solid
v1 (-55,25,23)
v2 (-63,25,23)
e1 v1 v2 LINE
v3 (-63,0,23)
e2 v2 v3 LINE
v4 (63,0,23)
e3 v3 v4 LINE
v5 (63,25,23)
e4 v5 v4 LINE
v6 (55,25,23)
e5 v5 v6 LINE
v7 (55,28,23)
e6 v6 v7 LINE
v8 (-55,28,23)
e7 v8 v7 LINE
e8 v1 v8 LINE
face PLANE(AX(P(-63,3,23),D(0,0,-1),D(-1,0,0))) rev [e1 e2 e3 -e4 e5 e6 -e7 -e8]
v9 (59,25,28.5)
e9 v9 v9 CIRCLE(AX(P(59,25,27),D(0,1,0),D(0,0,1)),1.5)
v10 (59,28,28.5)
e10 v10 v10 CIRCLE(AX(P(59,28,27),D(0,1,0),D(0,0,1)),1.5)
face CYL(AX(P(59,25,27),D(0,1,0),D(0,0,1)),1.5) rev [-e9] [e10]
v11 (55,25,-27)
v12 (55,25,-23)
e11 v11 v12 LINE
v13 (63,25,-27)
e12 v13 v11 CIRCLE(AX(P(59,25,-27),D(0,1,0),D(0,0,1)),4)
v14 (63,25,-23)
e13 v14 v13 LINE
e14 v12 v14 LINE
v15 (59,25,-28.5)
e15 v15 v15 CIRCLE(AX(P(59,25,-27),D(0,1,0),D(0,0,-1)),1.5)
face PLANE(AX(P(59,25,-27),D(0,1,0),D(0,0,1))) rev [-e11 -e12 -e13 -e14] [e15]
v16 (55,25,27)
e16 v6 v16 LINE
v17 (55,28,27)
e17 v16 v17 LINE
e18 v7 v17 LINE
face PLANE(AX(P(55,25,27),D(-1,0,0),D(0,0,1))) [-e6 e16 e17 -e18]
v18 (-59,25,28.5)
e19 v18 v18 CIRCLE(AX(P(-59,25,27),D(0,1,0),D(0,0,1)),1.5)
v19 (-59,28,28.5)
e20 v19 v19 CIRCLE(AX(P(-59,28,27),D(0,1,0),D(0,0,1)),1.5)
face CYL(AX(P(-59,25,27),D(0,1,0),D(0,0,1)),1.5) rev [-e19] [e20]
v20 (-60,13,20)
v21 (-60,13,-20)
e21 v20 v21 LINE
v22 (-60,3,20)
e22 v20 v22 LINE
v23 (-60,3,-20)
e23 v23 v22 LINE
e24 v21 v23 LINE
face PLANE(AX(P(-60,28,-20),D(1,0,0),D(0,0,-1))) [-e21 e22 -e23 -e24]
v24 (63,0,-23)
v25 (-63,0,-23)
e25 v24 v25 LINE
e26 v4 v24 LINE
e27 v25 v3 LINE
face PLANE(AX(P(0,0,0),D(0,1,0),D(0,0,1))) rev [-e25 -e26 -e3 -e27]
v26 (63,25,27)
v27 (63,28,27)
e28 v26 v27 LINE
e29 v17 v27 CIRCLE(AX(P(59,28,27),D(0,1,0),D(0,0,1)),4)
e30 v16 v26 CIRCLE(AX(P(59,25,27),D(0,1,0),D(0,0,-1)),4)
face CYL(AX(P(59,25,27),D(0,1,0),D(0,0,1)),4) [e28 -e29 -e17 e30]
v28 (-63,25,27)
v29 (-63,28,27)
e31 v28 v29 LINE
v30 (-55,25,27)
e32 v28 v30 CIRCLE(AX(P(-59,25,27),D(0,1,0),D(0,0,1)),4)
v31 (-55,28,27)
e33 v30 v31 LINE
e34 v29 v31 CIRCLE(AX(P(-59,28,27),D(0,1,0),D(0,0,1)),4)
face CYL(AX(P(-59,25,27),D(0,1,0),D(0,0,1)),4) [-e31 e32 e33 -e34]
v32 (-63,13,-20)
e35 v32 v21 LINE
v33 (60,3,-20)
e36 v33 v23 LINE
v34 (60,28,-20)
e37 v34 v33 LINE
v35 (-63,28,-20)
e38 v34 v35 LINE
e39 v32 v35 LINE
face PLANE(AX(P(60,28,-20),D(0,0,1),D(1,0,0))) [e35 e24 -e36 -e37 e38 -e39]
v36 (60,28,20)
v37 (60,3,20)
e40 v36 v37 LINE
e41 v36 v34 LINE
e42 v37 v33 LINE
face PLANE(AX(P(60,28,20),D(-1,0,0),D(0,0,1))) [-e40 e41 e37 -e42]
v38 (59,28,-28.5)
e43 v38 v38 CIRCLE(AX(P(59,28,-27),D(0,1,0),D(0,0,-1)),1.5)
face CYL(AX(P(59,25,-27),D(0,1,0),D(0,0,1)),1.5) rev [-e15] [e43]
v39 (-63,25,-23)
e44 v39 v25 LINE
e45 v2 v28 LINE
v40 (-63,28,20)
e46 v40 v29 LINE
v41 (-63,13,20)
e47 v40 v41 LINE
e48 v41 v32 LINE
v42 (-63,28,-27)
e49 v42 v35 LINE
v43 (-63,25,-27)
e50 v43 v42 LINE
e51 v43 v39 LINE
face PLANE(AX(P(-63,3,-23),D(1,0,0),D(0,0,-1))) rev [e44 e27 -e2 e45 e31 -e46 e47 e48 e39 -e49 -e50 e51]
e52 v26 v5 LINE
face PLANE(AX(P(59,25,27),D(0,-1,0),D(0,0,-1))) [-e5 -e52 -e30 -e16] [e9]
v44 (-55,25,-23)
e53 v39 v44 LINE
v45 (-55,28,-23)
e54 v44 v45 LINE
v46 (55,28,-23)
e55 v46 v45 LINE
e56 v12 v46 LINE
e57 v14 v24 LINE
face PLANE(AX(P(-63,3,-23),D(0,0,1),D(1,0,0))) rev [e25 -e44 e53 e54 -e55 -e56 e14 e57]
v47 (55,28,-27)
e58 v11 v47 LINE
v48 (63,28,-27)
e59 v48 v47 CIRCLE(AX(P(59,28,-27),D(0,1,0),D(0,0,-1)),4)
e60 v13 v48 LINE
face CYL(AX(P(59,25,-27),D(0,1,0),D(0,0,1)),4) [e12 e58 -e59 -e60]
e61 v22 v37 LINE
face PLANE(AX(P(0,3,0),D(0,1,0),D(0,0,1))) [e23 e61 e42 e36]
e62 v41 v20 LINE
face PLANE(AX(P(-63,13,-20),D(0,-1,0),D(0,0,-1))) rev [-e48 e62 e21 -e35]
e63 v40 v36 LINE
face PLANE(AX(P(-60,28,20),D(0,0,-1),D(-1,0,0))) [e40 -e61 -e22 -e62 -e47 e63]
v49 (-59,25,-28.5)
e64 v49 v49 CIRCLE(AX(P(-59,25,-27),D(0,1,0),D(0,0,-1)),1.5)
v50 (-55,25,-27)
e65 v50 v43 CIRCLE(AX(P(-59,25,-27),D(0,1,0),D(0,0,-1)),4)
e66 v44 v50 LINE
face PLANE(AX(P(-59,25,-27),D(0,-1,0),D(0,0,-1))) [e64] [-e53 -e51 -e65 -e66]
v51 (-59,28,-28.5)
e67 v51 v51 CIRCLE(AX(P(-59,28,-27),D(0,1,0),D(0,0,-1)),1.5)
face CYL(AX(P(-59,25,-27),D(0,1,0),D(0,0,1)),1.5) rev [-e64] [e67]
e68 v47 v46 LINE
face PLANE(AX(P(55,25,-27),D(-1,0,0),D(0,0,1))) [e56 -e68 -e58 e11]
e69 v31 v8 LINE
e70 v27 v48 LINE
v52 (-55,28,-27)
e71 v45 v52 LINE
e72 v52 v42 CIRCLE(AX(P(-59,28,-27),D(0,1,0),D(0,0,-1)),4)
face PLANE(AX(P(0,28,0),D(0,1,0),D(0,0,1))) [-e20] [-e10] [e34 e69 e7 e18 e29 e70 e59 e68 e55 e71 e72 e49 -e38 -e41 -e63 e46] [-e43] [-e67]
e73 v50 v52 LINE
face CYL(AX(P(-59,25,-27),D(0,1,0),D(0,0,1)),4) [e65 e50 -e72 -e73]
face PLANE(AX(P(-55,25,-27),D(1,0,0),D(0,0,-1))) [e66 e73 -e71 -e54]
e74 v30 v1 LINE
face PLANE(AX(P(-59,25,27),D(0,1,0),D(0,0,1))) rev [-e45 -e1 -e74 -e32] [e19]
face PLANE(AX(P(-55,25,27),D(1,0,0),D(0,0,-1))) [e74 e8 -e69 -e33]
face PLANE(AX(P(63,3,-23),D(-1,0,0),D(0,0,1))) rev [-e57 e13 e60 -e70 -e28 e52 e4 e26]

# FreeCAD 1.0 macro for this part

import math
import FreeCAD as App
import Part
import Sketcher
Q = App.Units.Quantity

doc = App.newDocument("Part")
params = doc.addObject("Spreadsheet::Sheet", "Params")
for row, (alias, value) in enumerate([
    ("sketch1_width", "126 mm"),
    ("sketch1_height", "46 mm"),
    ("pad1_length", "3 mm"),
    ("sketch2_width", "126 mm"),
    ("sketch2_width2", "120 mm"),
    ("sketch2_height", "46 mm"),
    ("sketch2_height2", "40 mm"),
    ("pad2_length", "25 mm"),
    ("sketch3_diameter", "3 mm"),
    ("sketch3_radius", "4 mm"),
    ("sketch3_height", "4 mm"),
    ("pad3_length", "3 mm"),
    ("sketch4_width", "15 mm"),
    ("sketch4_height", "40 mm"),
    ("pocket1_length", "3 mm"),
], start=1):
    params.set(f"A{row}", alias)
    params.set(f"B{row}", "=" + value)
    params.setAlias(f"B{row}", alias)

body = doc.addObject("PartDesign::Body", "Body")

# Sketch on XZ plane
sketch1 = body.newObject("Sketcher::SketchObject", "Sketch")
sketch1.AttachmentSupport = (doc.getObject("XZ_Plane"), [""])
sketch1.MapMode = "FlatFace"
sketch1.addGeometry(Part.LineSegment(App.Vector(-63, -23, 0), App.Vector(-63, 23, 0)), False)
sketch1.addGeometry(Part.LineSegment(App.Vector(-63, 23, 0), App.Vector(63, 23, 0)), False)
sketch1.addGeometry(Part.LineSegment(App.Vector(63, 23, 0), App.Vector(63, -23, 0)), False)
sketch1.addGeometry(Part.LineSegment(App.Vector(63, -23, 0), App.Vector(-63, -23, 0)), False)
sketch1.addConstraint(Sketcher.Constraint("Coincident", 0, 2, 1, 1))
sketch1.addConstraint(Sketcher.Constraint("Coincident", 1, 2, 2, 1))
sketch1.addConstraint(Sketcher.Constraint("Coincident", 2, 2, 3, 1))
sketch1.addConstraint(Sketcher.Constraint("Coincident", 3, 2, 0, 1))
sketch1.addConstraint(Sketcher.Constraint("Vertical", 0))
sketch1.addConstraint(Sketcher.Constraint("Horizontal", 1))
sketch1.addConstraint(Sketcher.Constraint("Vertical", 2))
sketch1.addConstraint(Sketcher.Constraint("Horizontal", 3))
sketch1.addConstraint(Sketcher.Constraint("Symmetric", 0, 2, 2, 2, -1, 1))
sketch1.addConstraint(Sketcher.Constraint("DistanceX", 1, 1, 1, 2, Q("126 mm")))
sketch1.addConstraint(Sketcher.Constraint("DistanceY", 0, 1, 0, 2, Q("46 mm")))
sketch1.setExpression("Constraints[9]", "Params.sketch1_width")
sketch1.setExpression("Constraints[10]", "Params.sketch1_height")
pad1 = body.newObject("PartDesign::Pad", "Pad")
pad1.Profile = sketch1
pad1.setExpression("Length", "Params.pad1_length")
pad1.Reversed = True

# Sketch on XZ plane
sketch2 = body.newObject("Sketcher::SketchObject", "Sketch001")
sketch2.AttachmentSupport = (doc.getObject("XZ_Plane"), [""])
sketch2.MapMode = "FlatFace"
sketch2.AttachmentOffset = App.Placement(App.Vector(0, 0, -3), App.Rotation())
sketch2.addGeometry(Part.LineSegment(App.Vector(-63, -23, 0), App.Vector(-63, 23, 0)), False)
sketch2.addGeometry(Part.LineSegment(App.Vector(-63, 23, 0), App.Vector(63, 23, 0)), False)
sketch2.addGeometry(Part.LineSegment(App.Vector(63, 23, 0), App.Vector(63, -23, 0)), False)
sketch2.addGeometry(Part.LineSegment(App.Vector(63, -23, 0), App.Vector(-63, -23, 0)), False)
sketch2.addGeometry(Part.LineSegment(App.Vector(60, 20, 0), App.Vector(-60, 20, 0)), False)
sketch2.addGeometry(Part.LineSegment(App.Vector(-60, 20, 0), App.Vector(-60, -20, 0)), False)
sketch2.addGeometry(Part.LineSegment(App.Vector(-60, -20, 0), App.Vector(60, -20, 0)), False)
sketch2.addGeometry(Part.LineSegment(App.Vector(60, -20, 0), App.Vector(60, 20, 0)), False)
sketch2.addConstraint(Sketcher.Constraint("Coincident", 0, 2, 1, 1))
sketch2.addConstraint(Sketcher.Constraint("Coincident", 1, 2, 2, 1))
sketch2.addConstraint(Sketcher.Constraint("Coincident", 2, 2, 3, 1))
sketch2.addConstraint(Sketcher.Constraint("Coincident", 3, 2, 0, 1))
sketch2.addConstraint(Sketcher.Constraint("Coincident", 4, 2, 5, 1))
sketch2.addConstraint(Sketcher.Constraint("Coincident", 5, 2, 6, 1))
sketch2.addConstraint(Sketcher.Constraint("Coincident", 6, 2, 7, 1))
sketch2.addConstraint(Sketcher.Constraint("Coincident", 7, 2, 4, 1))
sketch2.addConstraint(Sketcher.Constraint("Vertical", 0))
sketch2.addConstraint(Sketcher.Constraint("Horizontal", 1))
sketch2.addConstraint(Sketcher.Constraint("Vertical", 2))
sketch2.addConstraint(Sketcher.Constraint("Horizontal", 3))
sketch2.addConstraint(Sketcher.Constraint("Horizontal", 4))
sketch2.addConstraint(Sketcher.Constraint("Vertical", 5))
sketch2.addConstraint(Sketcher.Constraint("Horizontal", 6))
sketch2.addConstraint(Sketcher.Constraint("Vertical", 7))
sketch2.addConstraint(Sketcher.Constraint("Symmetric", 0, 2, 2, 2, -1, 1))
sketch2.addConstraint(Sketcher.Constraint("Symmetric", 4, 2, 6, 2, -1, 1))
sketch2.addConstraint(Sketcher.Constraint("DistanceX", 1, 1, 1, 2, Q("126 mm")))
sketch2.addConstraint(Sketcher.Constraint("DistanceX", 4, 2, 4, 1, Q("120 mm")))
sketch2.addConstraint(Sketcher.Constraint("DistanceY", 0, 1, 0, 2, Q("46 mm")))
sketch2.addConstraint(Sketcher.Constraint("DistanceY", 5, 2, 5, 1, Q("40 mm")))
sketch2.setExpression("Constraints[18]", "Params.sketch2_width")
sketch2.setExpression("Constraints[19]", "Params.sketch2_width2")
sketch2.setExpression("Constraints[20]", "Params.sketch2_height")
sketch2.setExpression("Constraints[21]", "Params.sketch2_height2")
pad2 = body.newObject("PartDesign::Pad", "Pad001")
pad2.Profile = sketch2
pad2.setExpression("Length", "Params.pad2_length")
pad2.Reversed = True

# Sketch on XZ plane
sketch3 = body.newObject("Sketcher::SketchObject", "Sketch002")
sketch3.AttachmentSupport = (doc.getObject("XZ_Plane"), [""])
sketch3.MapMode = "FlatFace"
sketch3.AttachmentOffset = App.Placement(App.Vector(0, 0, -28), App.Rotation())
sketch3.addGeometry(Part.LineSegment(App.Vector(63, 27, 0), App.Vector(63, 23, 0)), False)
sketch3.addGeometry(Part.LineSegment(App.Vector(63, 23, 0), App.Vector(55, 23, 0)), False)
sketch3.addGeometry(Part.LineSegment(App.Vector(55, 23, 0), App.Vector(55, 27, 0)), False)
sketch3.addGeometry(Part.ArcOfCircle(Part.Circle(App.Vector(59, 27, 0), App.Vector(0, 0, 1), 4), math.radians(90), math.radians(180)), False)
sketch3.addGeometry(Part.ArcOfCircle(Part.Circle(App.Vector(59, 27, 0), App.Vector(0, 0, 1), 4), math.radians(0), math.radians(90)), False)
sketch3.addGeometry(Part.Circle(App.Vector(59, 27, 0), App.Vector(0, 0, 1), 1.5), False)
sketch3.addGeometry(Part.LineSegment(App.Vector(-55, 23, 0), App.Vector(-63, 23, 0)), False)
sketch3.addGeometry(Part.LineSegment(App.Vector(-63, 23, 0), App.Vector(-63, 27, 0)), False)
sketch3.addGeometry(Part.ArcOfCircle(Part.Circle(App.Vector(-59, 27, 0), App.Vector(0, 0, 1), 4), math.radians(90), math.radians(180)), False)
sketch3.addGeometry(Part.ArcOfCircle(Part.Circle(App.Vector(-59, 27, 0), App.Vector(0, 0, 1), 4), math.radians(0), math.radians(90)), False)
sketch3.addGeometry(Part.LineSegment(App.Vector(-55, 27, 0), App.Vector(-55, 23, 0)), False)
sketch3.addGeometry(Part.Circle(App.Vector(-59, 27, 0), App.Vector(0, 0, 1), 1.5), False)
sketch3.addGeometry(Part.LineSegment(App.Vector(55, -27, 0), App.Vector(55, -23, 0)), False)
sketch3.addGeometry(Part.LineSegment(App.Vector(55, -23, 0), App.Vector(63, -23, 0)), False)
sketch3.addGeometry(Part.LineSegment(App.Vector(63, -23, 0), App.Vector(63, -27, 0)), False)
sketch3.addGeometry(Part.ArcOfCircle(Part.Circle(App.Vector(59, -27, 0), App.Vector(0, 0, 1), 4), math.radians(-90), math.radians(0)), False)
sketch3.addGeometry(Part.ArcOfCircle(Part.Circle(App.Vector(59, -27, 0), App.Vector(0, 0, 1), 4), math.radians(180), math.radians(270)), False)
sketch3.addGeometry(Part.Circle(App.Vector(59, -27, 0), App.Vector(0, 0, 1), 1.5), False)
sketch3.addGeometry(Part.LineSegment(App.Vector(-55, -23, 0), App.Vector(-55, -27, 0)), False)
sketch3.addGeometry(Part.ArcOfCircle(Part.Circle(App.Vector(-59, -27, 0), App.Vector(0, 0, 1), 4), math.radians(-90), math.radians(0)), False)
sketch3.addGeometry(Part.ArcOfCircle(Part.Circle(App.Vector(-59, -27, 0), App.Vector(0, 0, 1), 4), math.radians(180), math.radians(270)), False)
sketch3.addGeometry(Part.LineSegment(App.Vector(-63, -27, 0), App.Vector(-63, -23, 0)), False)
sketch3.addGeometry(Part.LineSegment(App.Vector(-63, -23, 0), App.Vector(-55, -23, 0)), False)
sketch3.addGeometry(Part.Circle(App.Vector(-59, -27, 0), App.Vector(0, 0, 1), 1.5), False)
sketch3.addConstraint(Sketcher.Constraint("Coincident", 0, 2, 1, 1))
sketch3.addConstraint(Sketcher.Constraint("Coincident", 1, 2, 2, 1))
sketch3.addConstraint(Sketcher.Constraint("Tangent", 2, 2, 3, 2))
sketch3.addConstraint(Sketcher.Constraint("Tangent", 3, 1, 4, 2))
sketch3.addConstraint(Sketcher.Constraint("Tangent", 4, 1, 0, 1))
sketch3.addConstraint(Sketcher.Constraint("Coincident", 6, 2, 7, 1))
sketch3.addConstraint(Sketcher.Constraint("Tangent", 7, 2, 8, 2))
sketch3.addConstraint(Sketcher.Constraint("Tangent", 8, 1, 9, 2))
sketch3.addConstraint(Sketcher.Constraint("Tangent", 9, 1, 10, 1))
sketch3.addConstraint(Sketcher.Constraint("Coincident", 10, 2, 6, 1))
sketch3.addConstraint(Sketcher.Constraint("Coincident", 12, 2, 13, 1))
sketch3.addConstraint(Sketcher.Constraint("Coincident", 13, 2, 14, 1))
sketch3.addConstraint(Sketcher.Constraint("Tangent", 14, 2, 15, 2))
sketch3.addConstraint(Sketcher.Constraint("Tangent", 15, 1, 16, 2))
sketch3.addConstraint(Sketcher.Constraint("Tangent", 16, 1, 12, 1))
sketch3.addConstraint(Sketcher.Constraint("Tangent", 18, 2, 19, 2))
sketch3.addConstraint(Sketcher.Constraint("Tangent", 19, 1, 20, 2))
sketch3.addConstraint(Sketcher.Constraint("Tangent", 20, 1, 21, 1))
sketch3.addConstraint(Sketcher.Constraint("Coincident", 21, 2, 22, 1))
sketch3.addConstraint(Sketcher.Constraint("Coincident", 22, 2, 18, 1))
sketch3.addConstraint(Sketcher.Constraint("Vertical", 0))
sketch3.addConstraint(Sketcher.Constraint("Horizontal", 1))
sketch3.addConstraint(Sketcher.Constraint("Vertical", 2))
sketch3.addConstraint(Sketcher.Constraint("Horizontal", 6))
sketch3.addConstraint(Sketcher.Constraint("Vertical", 7))
sketch3.addConstraint(Sketcher.Constraint("Vertical", 10))
sketch3.addConstraint(Sketcher.Constraint("Vertical", 12))
sketch3.addConstraint(Sketcher.Constraint("Horizontal", 13))
sketch3.addConstraint(Sketcher.Constraint("Vertical", 14))
sketch3.addConstraint(Sketcher.Constraint("Vertical", 18))
sketch3.addConstraint(Sketcher.Constraint("Vertical", 21))
sketch3.addConstraint(Sketcher.Constraint("Horizontal", 22))
sketch3.addConstraint(Sketcher.Constraint("Coincident", 5, 3, 3, 3))
sketch3.addConstraint(Sketcher.Constraint("Coincident", 11, 3, 8, 3))
sketch3.addConstraint(Sketcher.Constraint("Coincident", 17, 3, 15, 3))
sketch3.addConstraint(Sketcher.Constraint("Coincident", 23, 3, 19, 3))
sketch3.addConstraint(Sketcher.Constraint("Equal", 3, 4))
sketch3.addConstraint(Sketcher.Constraint("Equal", 4, 8))
sketch3.addConstraint(Sketcher.Constraint("Equal", 8, 9))
sketch3.addConstraint(Sketcher.Constraint("Equal", 5, 11))
sketch3.addConstraint(Sketcher.Constraint("Equal", 9, 15))
sketch3.addConstraint(Sketcher.Constraint("Equal", 15, 16))
sketch3.addConstraint(Sketcher.Constraint("Equal", 11, 17))
sketch3.addConstraint(Sketcher.Constraint("Equal", 16, 19))
sketch3.addConstraint(Sketcher.Constraint("Equal", 19, 20))
sketch3.addConstraint(Sketcher.Constraint("Equal", 17, 23))
sketch3.addConstraint(Sketcher.Constraint("Symmetric", 8, 3, 15, 3, -1, 1))
sketch3.addConstraint(Sketcher.Constraint("Symmetric", 3, 3, 19, 3, -1, 1))
sketch3.addConstraint(Sketcher.Constraint("Symmetric", 3, 3, 8, 3, -2))
sketch3.addConstraint(Sketcher.Constraint("Horizontal", 1, 2, 6, 2))
sketch3.addConstraint(Sketcher.Constraint("Horizontal", 13, 2, 21, 2))
sketch3.addConstraint(Sketcher.Constraint("Vertical", 17, 3, 3, 1))
sketch3.addConstraint(Sketcher.Constraint("Vertical", 23, 3, 8, 1))
sketch3.addConstraint(Sketcher.Constraint("Vertical", 3, 1, 15, 1))
sketch3.addConstraint(Sketcher.Constraint("Vertical", 8, 1, 19, 1))
sketch3.addConstraint(Sketcher.Constraint("Equal", 10, 12))
sketch3.addConstraint(Sketcher.Constraint("Diameter", 5, Q("3 mm")))
sketch3.addConstraint(Sketcher.Constraint("Radius", 3, Q("4 mm")))
sketch3.addConstraint(Sketcher.Constraint("DistanceY", 0, 2, 0, 1, Q("4 mm")))
sketch3.addConstraint(Sketcher.Constraint("DistanceX", -1, 1, 3, 3, Q("59 mm")))
sketch3.addConstraint(Sketcher.Constraint("DistanceY", -1, 1, 3, 3, Q("27 mm")))
sketch3.setExpression("Constraints[56]", "Params.sketch3_diameter")
sketch3.setExpression("Constraints[57]", "Params.sketch3_radius")
sketch3.setExpression("Constraints[58]", "Params.sketch3_height")
pad3 = body.newObject("PartDesign::Pad", "Pad002")
pad3.Profile = sketch3
pad3.setExpression("Length", "Params.pad3_length")

# Sketch on YZ plane
sketch4 = body.newObject("Sketcher::SketchObject", "Sketch003")
sketch4.AttachmentSupport = (doc.getObject("YZ_Plane"), [""])
sketch4.MapMode = "FlatFace"
sketch4.AttachmentOffset = App.Placement(App.Vector(0, 0, -60), App.Rotation())
sketch4.addGeometry(Part.LineSegment(App.Vector(28, 20, 0), App.Vector(13, 20, 0)), False)
sketch4.addGeometry(Part.LineSegment(App.Vector(13, 20, 0), App.Vector(13, -20, 0)), False)
sketch4.addGeometry(Part.LineSegment(App.Vector(13, -20, 0), App.Vector(28, -20, 0)), False)
sketch4.addGeometry(Part.LineSegment(App.Vector(28, -20, 0), App.Vector(28, 20, 0)), False)
sketch4.addConstraint(Sketcher.Constraint("Coincident", 0, 2, 1, 1))
sketch4.addConstraint(Sketcher.Constraint("Coincident", 1, 2, 2, 1))
sketch4.addConstraint(Sketcher.Constraint("Coincident", 2, 2, 3, 1))
sketch4.addConstraint(Sketcher.Constraint("Coincident", 3, 2, 0, 1))
sketch4.addConstraint(Sketcher.Constraint("Horizontal", 0))
sketch4.addConstraint(Sketcher.Constraint("Vertical", 1))
sketch4.addConstraint(Sketcher.Constraint("Horizontal", 2))
sketch4.addConstraint(Sketcher.Constraint("Vertical", 3))
sketch4.addConstraint(Sketcher.Constraint("DistanceX", 0, 2, 0, 1, Q("15 mm")))
sketch4.addConstraint(Sketcher.Constraint("DistanceY", 1, 2, 1, 1, Q("40 mm")))
sketch4.addConstraint(Sketcher.Constraint("DistanceX", -1, 1, 0, 2, Q("13 mm")))
sketch4.addConstraint(Sketcher.Constraint("DistanceY", -1, 1, 0, 2, Q("20 mm")))
sketch4.setExpression("Constraints[8]", "Params.sketch4_width")
sketch4.setExpression("Constraints[9]", "Params.sketch4_height")
pocket1 = body.newObject("PartDesign::Pocket", "Pocket")
pocket1.Profile = sketch4
pocket1.setExpression("Length", "Params.pocket1_length")

doc.recompute()
